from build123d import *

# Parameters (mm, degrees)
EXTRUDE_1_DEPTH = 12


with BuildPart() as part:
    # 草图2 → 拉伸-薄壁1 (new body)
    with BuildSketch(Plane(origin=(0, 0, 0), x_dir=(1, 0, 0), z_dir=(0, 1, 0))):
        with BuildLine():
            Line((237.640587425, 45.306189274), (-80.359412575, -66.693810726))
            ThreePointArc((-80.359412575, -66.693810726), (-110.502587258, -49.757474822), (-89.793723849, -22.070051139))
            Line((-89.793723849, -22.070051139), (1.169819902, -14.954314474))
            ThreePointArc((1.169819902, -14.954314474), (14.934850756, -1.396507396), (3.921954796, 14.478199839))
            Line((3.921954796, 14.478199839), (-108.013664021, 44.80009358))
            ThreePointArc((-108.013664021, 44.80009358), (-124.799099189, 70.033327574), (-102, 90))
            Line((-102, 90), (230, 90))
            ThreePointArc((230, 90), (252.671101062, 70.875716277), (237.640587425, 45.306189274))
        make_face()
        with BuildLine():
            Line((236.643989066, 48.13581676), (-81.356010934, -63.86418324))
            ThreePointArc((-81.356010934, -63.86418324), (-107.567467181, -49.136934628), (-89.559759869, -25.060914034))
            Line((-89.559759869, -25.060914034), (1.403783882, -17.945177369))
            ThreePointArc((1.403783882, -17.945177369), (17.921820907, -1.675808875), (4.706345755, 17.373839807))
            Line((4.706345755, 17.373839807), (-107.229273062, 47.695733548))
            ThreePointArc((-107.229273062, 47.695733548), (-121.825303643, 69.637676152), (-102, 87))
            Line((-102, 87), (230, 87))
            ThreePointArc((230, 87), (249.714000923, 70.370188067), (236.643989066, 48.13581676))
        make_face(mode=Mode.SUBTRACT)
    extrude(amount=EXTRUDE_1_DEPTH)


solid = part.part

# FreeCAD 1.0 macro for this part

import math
import FreeCAD as App
import Part
import Sketcher

doc = App.newDocument("Part")
params = doc.addObject("Spreadsheet::Sheet", "Params")
for row, (alias, value) in enumerate([
    ("sketch1_radius", "23 mm"),
    ("sketch1_radius2", "15 mm"),
    ("sketch1_radius3", "20 mm"),
    ("sketch1_width", "332 mm"),
    ("pad1_length", "12 mm"),
], start=1):
    params.set(f"A{row}", alias)
    params.set(f"B{row}", "=" + value)
    params.setAlias(f"B{row}", alias)

body = doc.addObject("PartDesign::Body", "Body")

# Sketch on XZ plane
sketch1 = doc.addObject("Sketcher::SketchObject", "Sketch")
body.addObject(sketch1)
sketch1.AttachmentSupport = (doc.XZ_Plane, [""])
sketch1.MapMode = "FlatFace"
sketch1.addGeometry(Part.LineSegment(App.Vector(-80, 67, 0), App.Vector(238, -45, 0)), False)
sketch1.addGeometry(Part.ArcOfCircle(Part.Circle(App.Vector(230, -67, 0), App.Vector(0, 0, 1), 23), math.radians(-90), math.radians(71)), False)
sketch1.addGeometry(Part.LineSegment(App.Vector(230, -90, 0), App.Vector(-102, -90, 0)), False)
sketch1.addGeometry(Part.ArcOfCircle(Part.Circle(App.Vector(-102, -67, 0), App.Vector(0, 0, 1), 23), math.radians(105), math.radians(270)), False)
sketch1.addGeometry(Part.LineSegment(App.Vector(-108, -45, 0), App.Vector(4, -14, 0)), False)
sketch1.addGeometry(Part.ArcOfCircle(Part.Circle(App.Vector(0, 0, 0), App.Vector(0, 0, 1), 15), math.radians(-75), math.radians(86)), False)
sketch1.addGeometry(Part.LineSegment(App.Vector(1, 15, 0), App.Vector(-90, 22, 0)), False)
sketch1.addGeometry(Part.ArcOfCircle(Part.Circle(App.Vector(-88, 45, 0), App.Vector(0, 0, 1), 23), math.radians(71), math.radians(266)), False)
sketch1.addGeometry(Part.LineSegment(App.Vector(237, -48, 0), App.Vector(-81, 64, 0)), False)
sketch1.addGeometry(Part.ArcOfCircle(Part.Circle(App.Vector(-88, 45, 0), App.Vector(0, 0, 1), 20), math.radians(71), math.radians(266)), False)
sketch1.addGeometry(Part.LineSegment(App.Vector(-90, 25, 0), App.Vector(1, 18, 0)), False)
sketch1.addGeometry(Part.ArcOfCircle(Part.Circle(App.Vector(0, 0, 0), App.Vector(0, 0, 1), 18), math.radians(-75), math.radians(86)), False)
sketch1.addGeometry(Part.LineSegment(App.Vector(5, -17, 0), App.Vector(-107, -48, 0)), False)
sketch1.addGeometry(Part.ArcOfCircle(Part.Circle(App.Vector(-102, -67, 0), App.Vector(0, 0, 1), 20), math.radians(105), math.radians(270)), False)
sketch1.addGeometry(Part.LineSegment(App.Vector(-102, -87, 0), App.Vector(230, -87, 0)), False)
sketch1.addGeometry(Part.ArcOfCircle(Part.Circle(App.Vector(230, -67, 0), App.Vector(0, 0, 1), 20), math.radians(-90), math.radians(71)), False)
sketch1.addConstraint(Sketcher.Constraint("Tangent", 0, 2, 1, 2))
sketch1.addConstraint(Sketcher.Constraint("Tangent", 1, 1, 2, 1))
sketch1.addConstraint(Sketcher.Constraint("Tangent", 2, 2, 3, 2))
sketch1.addConstraint(Sketcher.Constraint("Tangent", 3, 1, 4, 1))
sketch1.addConstraint(Sketcher.Constraint("Tangent", 4, 2, 5, 1))
sketch1.addConstraint(Sketcher.Constraint("Tangent", 5, 2, 6, 1))
sketch1.addConstraint(Sketcher.Constraint("Tangent", 6, 2, 7, 2))
sketch1.addConstraint(Sketcher.Constraint("Tangent", 7, 1, 0, 1))
sketch1.addConstraint(Sketcher.Constraint("Tangent", 8, 2, 9, 1))
sketch1.addConstraint(Sketcher.Constraint("Tangent", 9, 2, 10, 1))
sketch1.addConstraint(Sketcher.Constraint("Tangent", 10, 2, 11, 2))
sketch1.addConstraint(Sketcher.Constraint("Tangent", 11, 1, 12, 1))
sketch1.addConstraint(Sketcher.Constraint("Tangent", 12, 2, 13, 1))
sketch1.addConstraint(Sketcher.Constraint("Tangent", 13, 2, 14, 1))
sketch1.addConstraint(Sketcher.Constraint("Tangent", 14, 2, 15, 1))
sketch1.addConstraint(Sketcher.Constraint("Tangent", 15, 2, 8, 1))
sketch1.addConstraint(Sketcher.Constraint("Horizontal", 2))
sketch1.addConstraint(Sketcher.Constraint("Horizontal", 14))
sketch1.addConstraint(Sketcher.Constraint("Coincident", 5, 3, -1, 1))
sketch1.addConstraint(Sketcher.Constraint("Coincident", 11, 3, -1, 1))
sketch1.addConstraint(Sketcher.Constraint("Coincident", 9, 3, 7, 3))
sketch1.addConstraint(Sketcher.Constraint("Coincident", 13, 3, 3, 3))
sketch1.addConstraint(Sketcher.Constraint("Coincident", 15, 3, 1, 3))
sketch1.addConstraint(Sketcher.Constraint("Equal", 1, 3))
sketch1.addConstraint(Sketcher.Constraint("Equal", 3, 7))
sketch1.addConstraint(Sketcher.Constraint("Equal", 9, 13))
sketch1.addConstraint(Sketcher.Constraint("Parallel", 6, 10))
sketch1.addConstraint(Sketcher.Constraint("Radius", 1, 23.0))
sketch1.addConstraint(Sketcher.Constraint("Radius", 5, 15.0))
sketch1.addConstraint(Sketcher.Constraint("Radius", 9, 20.0))
sketch1.addConstraint(Sketcher.Constraint("DistanceX", 2, 2, 2, 1, 332.0))
sketch1.addConstraint(Sketcher.Constraint("DistanceX", -1, 1, 1, 3, 230.0))
sketch1.addConstraint(Sketcher.Constraint("DistanceY", 1, 3, -1, 1, 67.0))
sketch1.addConstraint(Sketcher.Constraint("DistanceX", 7, 3, -1, 1, 88.0))
sketch1.addConstraint(Sketcher.Constraint("DistanceY", -1, 1, 7, 3, 45.0))
sketch1.setExpression("Constraints[27]", "Params.sketch1_radius")
sketch1.setExpression("Constraints[28]", "Params.sketch1_radius2")
sketch1.setExpression("Constraints[29]", "Params.sketch1_radius3")
sketch1.setExpression("Constraints[30]", "Params.sketch1_width")
pad1 = doc.addObject("PartDesign::Pad", "Pad")
body.addObject(pad1)
pad1.Profile = sketch1
pad1.setExpression("Length", "Params.pad1_length")
pad1.Reversed = True

doc.recompute()
